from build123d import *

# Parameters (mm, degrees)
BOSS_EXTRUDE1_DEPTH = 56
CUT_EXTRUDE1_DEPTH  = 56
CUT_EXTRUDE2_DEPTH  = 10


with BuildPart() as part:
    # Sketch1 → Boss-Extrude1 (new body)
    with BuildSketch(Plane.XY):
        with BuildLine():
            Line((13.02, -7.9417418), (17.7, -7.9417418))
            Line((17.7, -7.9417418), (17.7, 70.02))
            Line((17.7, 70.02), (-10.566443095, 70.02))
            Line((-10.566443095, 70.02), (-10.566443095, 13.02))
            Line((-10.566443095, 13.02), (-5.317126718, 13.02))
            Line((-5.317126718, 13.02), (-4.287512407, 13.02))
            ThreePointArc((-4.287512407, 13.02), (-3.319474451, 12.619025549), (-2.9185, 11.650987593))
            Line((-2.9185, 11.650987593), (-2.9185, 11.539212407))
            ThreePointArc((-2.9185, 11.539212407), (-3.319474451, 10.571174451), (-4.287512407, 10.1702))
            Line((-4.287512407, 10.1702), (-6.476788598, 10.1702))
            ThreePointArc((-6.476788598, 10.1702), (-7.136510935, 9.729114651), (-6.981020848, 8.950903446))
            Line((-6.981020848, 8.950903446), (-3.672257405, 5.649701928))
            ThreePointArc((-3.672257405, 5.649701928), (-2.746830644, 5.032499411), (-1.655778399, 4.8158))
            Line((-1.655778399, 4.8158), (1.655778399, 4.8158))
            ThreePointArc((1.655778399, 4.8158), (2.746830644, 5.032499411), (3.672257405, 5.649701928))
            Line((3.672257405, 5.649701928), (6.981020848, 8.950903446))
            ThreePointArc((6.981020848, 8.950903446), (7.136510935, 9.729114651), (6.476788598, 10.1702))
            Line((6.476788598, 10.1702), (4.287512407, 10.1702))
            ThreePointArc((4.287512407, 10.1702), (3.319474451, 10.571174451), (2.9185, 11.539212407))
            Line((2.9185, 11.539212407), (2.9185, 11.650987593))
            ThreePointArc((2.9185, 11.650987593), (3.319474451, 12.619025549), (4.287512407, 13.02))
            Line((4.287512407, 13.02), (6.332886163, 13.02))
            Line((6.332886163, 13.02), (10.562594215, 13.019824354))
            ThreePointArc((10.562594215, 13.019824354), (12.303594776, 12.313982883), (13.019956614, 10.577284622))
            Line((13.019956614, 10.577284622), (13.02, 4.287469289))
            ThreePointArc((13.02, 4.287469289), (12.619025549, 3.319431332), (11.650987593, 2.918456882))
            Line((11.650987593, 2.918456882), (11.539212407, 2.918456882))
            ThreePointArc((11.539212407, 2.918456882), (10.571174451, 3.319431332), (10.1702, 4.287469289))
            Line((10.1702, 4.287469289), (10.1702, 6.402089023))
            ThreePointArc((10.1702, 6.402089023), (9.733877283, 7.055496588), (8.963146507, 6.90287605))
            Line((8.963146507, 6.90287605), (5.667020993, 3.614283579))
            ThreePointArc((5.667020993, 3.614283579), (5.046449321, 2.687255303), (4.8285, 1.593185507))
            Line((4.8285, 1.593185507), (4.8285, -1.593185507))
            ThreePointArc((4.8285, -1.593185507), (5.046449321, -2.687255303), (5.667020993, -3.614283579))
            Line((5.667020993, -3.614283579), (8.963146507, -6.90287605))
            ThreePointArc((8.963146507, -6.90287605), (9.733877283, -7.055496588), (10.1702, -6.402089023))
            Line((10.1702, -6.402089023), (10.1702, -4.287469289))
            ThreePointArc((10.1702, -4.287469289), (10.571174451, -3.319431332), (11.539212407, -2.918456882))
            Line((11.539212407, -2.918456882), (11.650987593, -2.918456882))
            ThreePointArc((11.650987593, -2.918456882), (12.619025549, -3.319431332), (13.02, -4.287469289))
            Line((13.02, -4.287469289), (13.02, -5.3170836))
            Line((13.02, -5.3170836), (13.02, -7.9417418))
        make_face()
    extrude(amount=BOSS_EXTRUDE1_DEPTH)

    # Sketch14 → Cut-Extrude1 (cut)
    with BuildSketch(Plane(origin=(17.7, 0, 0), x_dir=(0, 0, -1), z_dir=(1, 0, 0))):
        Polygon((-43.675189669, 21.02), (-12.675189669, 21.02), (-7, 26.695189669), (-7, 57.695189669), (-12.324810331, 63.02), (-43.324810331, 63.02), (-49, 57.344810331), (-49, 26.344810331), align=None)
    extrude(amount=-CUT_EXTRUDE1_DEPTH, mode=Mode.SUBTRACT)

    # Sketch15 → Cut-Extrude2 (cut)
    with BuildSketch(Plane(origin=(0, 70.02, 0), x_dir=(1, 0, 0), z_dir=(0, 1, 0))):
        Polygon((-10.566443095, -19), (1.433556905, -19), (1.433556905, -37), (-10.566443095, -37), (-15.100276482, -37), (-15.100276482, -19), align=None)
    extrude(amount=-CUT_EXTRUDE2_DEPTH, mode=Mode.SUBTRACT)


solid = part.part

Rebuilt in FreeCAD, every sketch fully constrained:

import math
import FreeCAD as App
import Part
import Sketcher

V = App.Vector
Q = App.Units.Quantity


def add_polygon(sketch, points):
    """Adds a closed chain of lines whose ends are joined by coincident constraints."""
    first, n = sketch.GeometryCount, len(points)
    for a, b in zip(points, points[1:] + points[:1]):
        sketch.addGeometry(Part.LineSegment(App.Vector(*a, 0), App.Vector(*b, 0)), False)
    for i in range(n):
        sketch.addConstraint(Sketcher.Constraint("Coincident", first + i, 2, first + (i + 1) % n, 1))

doc = App.newDocument("Part")
body = doc.addObject("PartDesign::Body", "Body")

sketch1 = body.newObject("Sketcher::SketchObject", "Sketch")
sketch1.AttachmentSupport = (doc.getObject("XY_Plane"), [""])
sketch1.MapMode = "FlatFace"
sketch1.addGeometry([
    Part.LineSegment(V(13.02, -7.94, 0), V(17.7, -7.94, 0)),
    Part.LineSegment(V(17.7, -7.94, 0), V(17.7, 70.02, 0)),
    Part.LineSegment(V(17.7, 70.02, 0), V(-10.57, 70.02, 0)),
    Part.LineSegment(V(-10.57, 70.02, 0), V(-10.57, 13.02, 0)),
    Part.LineSegment(V(-10.57, 13.02, 0), V(-4.29, 13.02, 0)),
    Part.ArcOfCircle(Part.Circle(V(-4.29, 11.65, 0), V(0, 0, 1), 1.37), math.radians(0), math.radians(90)),
    Part.LineSegment(V(-2.92, 11.65, 0), V(-2.92, 11.54, 0)),
    Part.ArcOfCircle(Part.Circle(V(-4.29, 11.54, 0), V(0, 0, 1), 1.37), math.radians(-90), math.radians(0)),
    Part.LineSegment(V(-4.29, 10.17, 0), V(-6.48, 10.17, 0)),
    Part.ArcOfCircle(Part.Circle(V(-6.48, 9.46, 0), V(0, 0, 1), 0.71), math.radians(90), math.radians(225)),
    Part.LineSegment(V(-6.98, 8.95, 0), V(-3.67, 5.65, 0)),
    Part.ArcOfCircle(Part.Circle(V(-1.66, 7.67, 0), V(0, 0, 1), 2.85), math.radians(-135), math.radians(-90)),
    Part.LineSegment(V(-1.66, 4.82, 0), V(1.66, 4.82, 0)),
    Part.ArcOfCircle(Part.Circle(V(1.66, 7.67, 0), V(0, 0, 1), 2.85), math.radians(-90), math.radians(-45)),
    Part.LineSegment(V(3.67, 5.65, 0), V(6.98, 8.95, 0)),
    Part.ArcOfCircle(Part.Circle(V(6.48, 9.46, 0), V(0, 0, 1), 0.71), math.radians(-45), math.radians(90)),
    Part.LineSegment(V(6.48, 10.17, 0), V(4.29, 10.17, 0)),
    Part.ArcOfCircle(Part.Circle(V(4.29, 11.54, 0), V(0, 0, 1), 1.37), math.radians(-180), math.radians(-90)),
    Part.LineSegment(V(2.92, 11.54, 0), V(2.92, 11.65, 0)),
    Part.ArcOfCircle(Part.Circle(V(4.29, 11.65, 0), V(0, 0, 1), 1.37), math.radians(90), math.radians(180)),
    Part.LineSegment(V(4.29, 13.02, 0), V(6.33, 13.02, 0)),
    Part.LineSegment(V(6.33, 13.02, 0), V(10.56, 13.02, 0)),
    Part.ArcOfCircle(Part.Circle(V(10.59, 10.59, 0), V(0, 0, 1), 2.43), math.radians(0), math.radians(91)),
    Part.LineSegment(V(13.02, 10.58, 0), V(13.02, 4.29, 0)),
    Part.ArcOfCircle(Part.Circle(V(11.65, 4.29, 0), V(0, 0, 1), 1.37), math.radians(-90), math.radians(0)),
    Part.LineSegment(V(11.65, 2.92, 0), V(11.54, 2.92, 0)),
    Part.ArcOfCircle(Part.Circle(V(11.54, 4.29, 0), V(0, 0, 1), 1.37), math.radians(180), math.radians(270)),
    Part.LineSegment(V(10.17, 4.29, 0), V(10.17, 6.4, 0)),
    Part.ArcOfCircle(Part.Circle(V(9.46, 6.4, 0), V(0, 0, 1), 0.71), math.radians(0), math.radians(135)),
    Part.LineSegment(V(8.96, 6.9, 0), V(5.67, 3.61, 0)),
    Part.ArcOfCircle(Part.Circle(V(7.68, 1.59, 0), V(0, 0, 1), 2.85), math.radians(135), math.radians(180)),
    Part.LineSegment(V(4.83, 1.59, 0), V(4.83, -1.59, 0)),
    Part.ArcOfCircle(Part.Circle(V(7.68, -1.59, 0), V(0, 0, 1), 2.85), math.radians(180), math.radians(225)),
    Part.LineSegment(V(5.67, -3.61, 0), V(8.96, -6.9, 0)),
    Part.ArcOfCircle(Part.Circle(V(9.46, -6.4, 0), V(0, 0, 1), 0.71), math.radians(-135), math.radians(0)),
    Part.LineSegment(V(10.17, -6.4, 0), V(10.17, -4.29, 0)),
    Part.ArcOfCircle(Part.Circle(V(11.54, -4.29, 0), V(0, 0, 1), 1.37), math.radians(90), math.radians(180)),
    Part.LineSegment(V(11.54, -2.92, 0), V(11.65, -2.92, 0)),
    Part.ArcOfCircle(Part.Circle(V(11.65, -4.29, 0), V(0, 0, 1), 1.37), math.radians(0), math.radians(90)),
    Part.LineSegment(V(13.02, -4.29, 0), V(13.02, -7.94, 0)),
], False)
sketch1.addConstraint([
    Sketcher.Constraint("Coincident", 0, 2, 1, 1),
    Sketcher.Constraint("Coincident", 1, 2, 2, 1),
    Sketcher.Constraint("Coincident", 2, 2, 3, 1),
    Sketcher.Constraint("Coincident", 3, 2, 4, 1),
    Sketcher.Constraint("Tangent", 4, 2, 5, 2),
    Sketcher.Constraint("Tangent", 5, 1, 6, 1),
    Sketcher.Constraint("Tangent", 6, 2, 7, 2),
    Sketcher.Constraint("Tangent", 7, 1, 8, 1),
    Sketcher.Constraint("Tangent", 8, 2, 9, 1),
    Sketcher.Constraint("Tangent", 9, 2, 10, 1),
    Sketcher.Constraint("Tangent", 10, 2, 11, 1),
    Sketcher.Constraint("Tangent", 11, 2, 12, 1),
    Sketcher.Constraint("Tangent", 12, 2, 13, 1),
    Sketcher.Constraint("Tangent", 13, 2, 14, 1),
    Sketcher.Constraint("Tangent", 14, 2, 15, 1),
    Sketcher.Constraint("Tangent", 15, 2, 16, 1),
    Sketcher.Constraint("Tangent", 16, 2, 17, 2),
    Sketcher.Constraint("Tangent", 17, 1, 18, 1),
    Sketcher.Constraint("Tangent", 18, 2, 19, 2),
    Sketcher.Constraint("Tangent", 19, 1, 20, 1),
    Sketcher.Constraint("Coincident", 20, 2, 21, 1),
    Sketcher.Constraint("Coincident", 21, 2, 22, 2),
    Sketcher.Constraint("Coincident", 22, 1, 23, 1),
    Sketcher.Constraint("Coincident", 23, 2, 24, 2),
    Sketcher.Constraint("Tangent", 24, 1, 25, 1),
    Sketcher.Constraint("Tangent", 25, 2, 26, 2),
    Sketcher.Constraint("Tangent", 26, 1, 27, 1),
    Sketcher.Constraint("Tangent", 27, 2, 28, 1),
    Sketcher.Constraint("Tangent", 28, 2, 29, 1),
    Sketcher.Constraint("Tangent", 29, 2, 30, 1),
    Sketcher.Constraint("Tangent", 30, 2, 31, 1),
    Sketcher.Constraint("Tangent", 31, 2, 32, 1),
    Sketcher.Constraint("Tangent", 32, 2, 33, 1),
    Sketcher.Constraint("Tangent", 33, 2, 34, 1),
    Sketcher.Constraint("Tangent", 34, 2, 35, 1),
    Sketcher.Constraint("Tangent", 35, 2, 36, 2),
    Sketcher.Constraint("Tangent", 36, 1, 37, 1),
    Sketcher.Constraint("Tangent", 37, 2, 38, 2),
    Sketcher.Constraint("Tangent", 38, 1, 39, 1),
    Sketcher.Constraint("Coincident", 39, 2, 0, 1),
    Sketcher.Constraint("Horizontal", 0),
    Sketcher.Constraint("Vertical", 1),
    Sketcher.Constraint("Horizontal", 2),
    Sketcher.Constraint("Vertical", 3),
    Sketcher.Constraint("Horizontal", 4),
    Sketcher.Constraint("Vertical", 6),
    Sketcher.Constraint("Horizontal", 8),
    Sketcher.Constraint("Horizontal", 12),
    Sketcher.Constraint("Horizontal", 16),
    Sketcher.Constraint("Vertical", 18),
    Sketcher.Constraint("Horizontal", 20),
    Sketcher.Constraint("Horizontal", 25),
    Sketcher.Constraint("Vertical", 27),
    Sketcher.Constraint("Vertical", 31),
    Sketcher.Constraint("Vertical", 35),
    Sketcher.Constraint("Horizontal", 37),
    Sketcher.Constraint("Vertical", 39),
    Sketcher.Constraint("Equal", 5, 7),
    Sketcher.Constraint("Equal", 11, 13),
    Sketcher.Constraint("Equal", 9, 15),
    Sketcher.Constraint("Equal", 7, 17),
    Sketcher.Constraint("Equal", 17, 19),
    Sketcher.Constraint("Equal", 19, 24),
    Sketcher.Constraint("Equal", 24, 26),
    Sketcher.Constraint("Equal", 13, 30),
    Sketcher.Constraint("Equal", 30, 32),
    Sketcher.Constraint("Equal", 28, 34),
    Sketcher.Constraint("Equal", 26, 36),
    Sketcher.Constraint("Equal", 36, 38),
    Sketcher.Constraint("Symmetric", 9, 3, 15, 3, -2),
    Sketcher.Constraint("Symmetric", 5, 3, 19, 3, -2),
    Sketcher.Constraint("Symmetric", 28, 3, 34, 3, -1),
    Sketcher.Constraint("Symmetric", 24, 3, 38, 3, -1),
    Sketcher.Constraint("Parallel", 14, 29),
    Sketcher.Constraint("Parallel", 10, 33),
    Sketcher.Constraint("Horizontal", 10, 2, 13, 2),
    Sketcher.Constraint("Horizontal", 26, 3, 23, 2),
    Sketcher.Constraint("Equal", 37, 6),
    Sketcher.Constraint("DistanceY", 3, 2, 3, 1, Q("57 mm")),
    Sketcher.Constraint("Radius", 11, Q("2.855 mm")),
    Sketcher.Constraint("DistanceX", 0, 1, 0, 2, Q("4.68 mm")),
    Sketcher.Constraint("DistanceX", -1, 1, 0, 2, Q("17.7 mm")),
    Sketcher.Constraint("Radius", 22, Q("2.4282 mm")),
    Sketcher.Constraint("DistanceY", -1, 1, 1, 2, Q("70.02 mm")),
    Sketcher.Constraint("Radius", 9, Q("0.713909 mm")),
    Sketcher.Constraint("Radius", 28, Q("0.707411 mm")),
    Sketcher.Constraint("Radius", 5, Q("1.369012 mm")),
    Sketcher.Constraint("DistanceY", 13, 3, 22, 3, Q("2.921 mm")),
    Sketcher.Constraint("DistanceX", 15, 3, 28, 3, Q("2.986 mm")),
    Sketcher.Constraint("Distance", 29, Q("4.656102 mm")),
    Sketcher.Constraint("DistanceX", 4, 1, 4, 2, Q("6.278931 mm")),
    Sketcher.Constraint("DistanceY", 1, 1, 1, 2, Q("77.961742 mm")),
    Sketcher.Constraint("DistanceY", 27, 1, 27, 2, Q("2.11462 mm")),
    Sketcher.Constraint("DistanceY", 31, 2, 31, 1, Q("3.186371 mm")),
    Sketcher.Constraint("DistanceY", -1, 1, 11, 3, Q("7.6708 mm")),
    Sketcher.Constraint("DistanceX", -1, 1, 22, 3, Q("10.5918 mm")),
    Sketcher.Constraint("DistanceX", -1, 1, 30, 3, Q("7.6835 mm")),
    Sketcher.Constraint("DistanceX", 5, 1, -1, 1, Q("2.9185 mm")),
    Sketcher.Constraint("DistanceY", -1, 1, 7, 1, Q("10.1702 mm")),
    Sketcher.Constraint("Distance", 21, Q("4.229708 mm")),
    Sketcher.Constraint("DistanceX", 20, 1, 20, 2, Q("2.045374 mm")),
    Sketcher.Constraint("DistanceY", 22, 1, 21, 2, Q("2.44254 mm")),
])
pad1 = body.newObject("PartDesign::Pad", "Pad")
pad1.Profile = sketch1
pad1.Length = 56

sketch2 = body.newObject("Sketcher::SketchObject", "Sketch001")
sketch2.AttachmentSupport = (doc.getObject("YZ_Plane"), [""])
sketch2.MapMode = "FlatFace"
sketch2.AttachmentOffset = App.Placement(V(0, 0, 17.7), App.Rotation())
add_polygon(sketch2, [(21, 44), (21, 13), (27, 7), (58, 7), (63, 12), (63, 43), (57, 49), (26, 49)])
sketch2.addConstraint([
    Sketcher.Constraint("Vertical", 0),
    Sketcher.Constraint("Horizontal", 2),
    Sketcher.Constraint("Vertical", 4),
    Sketcher.Constraint("Horizontal", 6),
    Sketcher.Constraint("Perpendicular", 1, 3),
    Sketcher.Constraint("Perpendicular", 3, 5),
    Sketcher.Constraint("Perpendicular", 5, 7),
    Sketcher.Constraint("Equal", 2, 6),
    Sketcher.Constraint("Equal", 6, 0),
    Sketcher.Constraint("Equal", 0, 4),
    Sketcher.Constraint("DistanceX", 2, 1, 2, 2, Q("31 mm")),
    Sketcher.Constraint("Angle", 1, Q("-45 deg")),
    Sketcher.Constraint("DistanceY", -1, 1, 1, 2, Q("7 mm")),
    Sketcher.Constraint("DistanceY", -1, 1, 5, 2, Q("49 mm")),
    Sketcher.Constraint("DistanceX", -1, 1, 0, 2, Q("21.02 mm")),
    Sketcher.Constraint("Distance", 1, Q("8.02593 mm")),
])
pocket1 = body.newObject("PartDesign::Pocket", "Pocket")
pocket1.Profile = sketch2
pocket1.Length = 56

sketch3 = body.newObject("Sketcher::SketchObject", "Sketch002")
sketch3.AttachmentSupport = (doc.getObject("XZ_Plane"), [""])
sketch3.MapMode = "FlatFace"
sketch3.AttachmentOffset = App.Placement(V(0, 0, -70.02), App.Rotation())
add_polygon(sketch3, [(1, 19), (-15, 19), (-15, 37), (1, 37)])
sketch3.addConstraint([
    Sketcher.Constraint("Horizontal", 0),
    Sketcher.Constraint("Vertical", 1),
    Sketcher.Constraint("Horizontal", 2),
    Sketcher.Constraint("Vertical", 3),
    Sketcher.Constraint("DistanceY", 1, 1, 1, 2, Q("18 mm")),
    Sketcher.Constraint("DistanceY", -1, 1, 0, 2, Q("19 mm")),
    Sketcher.Constraint("DistanceX", 0, 2, 0, 1, Q("16.533833 mm")),
    Sketcher.Constraint("DistanceX", 0, 2, -1, 1, Q("15.100276 mm")),
])
pocket2 = body.newObject("PartDesign::Pocket", "Pocket001")
pocket2.Profile = sketch3
pocket2.Length = 10
pocket2.Reversed = True

doc.recompute()
